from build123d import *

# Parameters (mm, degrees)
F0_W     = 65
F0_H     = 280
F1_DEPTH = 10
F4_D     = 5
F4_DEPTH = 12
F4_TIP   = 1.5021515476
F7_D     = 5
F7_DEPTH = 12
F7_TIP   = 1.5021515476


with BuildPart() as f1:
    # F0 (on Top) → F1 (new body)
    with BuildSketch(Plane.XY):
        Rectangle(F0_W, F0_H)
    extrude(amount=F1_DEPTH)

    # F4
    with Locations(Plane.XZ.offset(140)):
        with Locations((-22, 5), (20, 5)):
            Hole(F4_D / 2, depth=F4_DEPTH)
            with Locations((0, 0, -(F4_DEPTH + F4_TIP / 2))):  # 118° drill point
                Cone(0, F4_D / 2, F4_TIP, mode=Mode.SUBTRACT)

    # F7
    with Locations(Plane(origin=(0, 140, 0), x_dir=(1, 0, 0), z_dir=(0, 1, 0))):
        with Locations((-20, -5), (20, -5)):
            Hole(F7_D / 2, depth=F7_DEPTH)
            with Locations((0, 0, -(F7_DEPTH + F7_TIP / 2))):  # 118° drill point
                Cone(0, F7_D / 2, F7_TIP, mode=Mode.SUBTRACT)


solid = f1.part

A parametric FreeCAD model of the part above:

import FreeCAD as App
import Part
import Sketcher
Q = App.Units.Quantity

doc = App.newDocument("Part")
body = doc.addObject("PartDesign::Body", "Body")

# Sketch on XY plane
sketch1 = body.newObject("Sketcher::SketchObject", "Sketch")
sketch1.AttachmentSupport = (doc.getObject("XY_Plane"), [""])
sketch1.MapMode = "FlatFace"
sketch1.addGeometry([
    Part.LineSegment(App.Vector(-32, 140, 0), App.Vector(-32, -140, 0)),
    Part.LineSegment(App.Vector(-32, -140, 0), App.Vector(32, -140, 0)),
    Part.LineSegment(App.Vector(32, -140, 0), App.Vector(32, 140, 0)),
    Part.LineSegment(App.Vector(32, 140, 0), App.Vector(-32, 140, 0)),
], False)
sketch1.addConstraint([
    Sketcher.Constraint("Coincident", 0, 2, 1, 1),
    Sketcher.Constraint("Coincident", 1, 2, 2, 1),
    Sketcher.Constraint("Coincident", 2, 2, 3, 1),
    Sketcher.Constraint("Coincident", 3, 2, 0, 1),
    Sketcher.Constraint("Vertical", 0),
    Sketcher.Constraint("Horizontal", 1),
    Sketcher.Constraint("Vertical", 2),
    Sketcher.Constraint("Horizontal", 3),
    Sketcher.Constraint("Symmetric", 0, 2, 2, 2, -1, 1),
    Sketcher.Constraint("DistanceX", 1, 1, 1, 2, Q("65 mm")),
    Sketcher.Constraint("DistanceY", 0, 2, 0, 1, Q("280 mm")),
])
pad1 = body.newObject("PartDesign::Pad", "Pad")
pad1.Profile = sketch1
pad1.Length = 10

# Sketch on XZ plane
sketch2 = body.newObject("Sketcher::SketchObject", "Sketch001")
sketch2.AttachmentSupport = (doc.getObject("XZ_Plane"), [""])
sketch2.MapMode = "FlatFace"
sketch2.AttachmentOffset = App.Placement(App.Vector(0, 0, 140), App.Rotation())
sketch2.addGeometry([
    Part.Circle(App.Vector(-22, 5, 0), App.Vector(0, 0, 1), 2.5),
    Part.Circle(App.Vector(20, 5, 0), App.Vector(0, 0, 1), 2.5),
], False)
sketch2.addConstraint([
    Sketcher.Constraint("Equal", 0, 1),
    Sketcher.Constraint("Horizontal", 0, 3, 1, 3),
    Sketcher.Constraint("Diameter", 0, Q("5 mm")),
    Sketcher.Constraint("DistanceX", 0, 3, -1, 1, Q("22 mm")),
    Sketcher.Constraint("DistanceY", -1, 1, 0, 3, Q("5 mm")),
    Sketcher.Constraint("DistanceX", -1, 1, 1, 3, Q("20 mm")),
])
doc.recompute()
hole = body.newObject("PartDesign::Hole", "Hole")
hole.Profile = sketch2
hole.ThreadType = "None"
hole.Diameter = 5
hole.DepthType = "Dimension"
hole.Depth = 12
hole.DrillPoint = "Angled"
hole.DrillPointAngle = 118

# Sketch on XZ plane
sketch3 = body.newObject("Sketcher::SketchObject", "Sketch002")
sketch3.AttachmentSupport = (doc.getObject("XZ_Plane"), [""])
sketch3.MapMode = "FlatFace"
sketch3.AttachmentOffset = App.Placement(App.Vector(0, 0, -140), App.Rotation())
sketch3.addGeometry([
    Part.Circle(App.Vector(-20, 5, 0), App.Vector(0, 0, 1), 2.5),
    Part.Circle(App.Vector(20, 5, 0), App.Vector(0, 0, 1), 2.5),
], False)
sketch3.addConstraint([
    Sketcher.Constraint("Equal", 0, 1),
    Sketcher.Constraint("Symmetric", 0, 3, 1, 3, -2),
    Sketcher.Constraint("Diameter", 0, Q("5 mm")),
    Sketcher.Constraint("DistanceX", 0, 3, -1, 1, Q("20 mm")),
    Sketcher.Constraint("DistanceY", -1, 1, 0, 3, Q("5 mm")),
])
doc.recompute()
hole2 = body.newObject("PartDesign::Hole", "Hole001")
hole2.Profile = sketch3
hole2.ThreadType = "None"
hole2.Diameter = 5
hole2.DepthType = "Dimension"
hole2.Depth = 12
hole2.DrillPoint = "Angled"
hole2.DrillPointAngle = 118
hole2.Reversed = True

doc.recompute()
